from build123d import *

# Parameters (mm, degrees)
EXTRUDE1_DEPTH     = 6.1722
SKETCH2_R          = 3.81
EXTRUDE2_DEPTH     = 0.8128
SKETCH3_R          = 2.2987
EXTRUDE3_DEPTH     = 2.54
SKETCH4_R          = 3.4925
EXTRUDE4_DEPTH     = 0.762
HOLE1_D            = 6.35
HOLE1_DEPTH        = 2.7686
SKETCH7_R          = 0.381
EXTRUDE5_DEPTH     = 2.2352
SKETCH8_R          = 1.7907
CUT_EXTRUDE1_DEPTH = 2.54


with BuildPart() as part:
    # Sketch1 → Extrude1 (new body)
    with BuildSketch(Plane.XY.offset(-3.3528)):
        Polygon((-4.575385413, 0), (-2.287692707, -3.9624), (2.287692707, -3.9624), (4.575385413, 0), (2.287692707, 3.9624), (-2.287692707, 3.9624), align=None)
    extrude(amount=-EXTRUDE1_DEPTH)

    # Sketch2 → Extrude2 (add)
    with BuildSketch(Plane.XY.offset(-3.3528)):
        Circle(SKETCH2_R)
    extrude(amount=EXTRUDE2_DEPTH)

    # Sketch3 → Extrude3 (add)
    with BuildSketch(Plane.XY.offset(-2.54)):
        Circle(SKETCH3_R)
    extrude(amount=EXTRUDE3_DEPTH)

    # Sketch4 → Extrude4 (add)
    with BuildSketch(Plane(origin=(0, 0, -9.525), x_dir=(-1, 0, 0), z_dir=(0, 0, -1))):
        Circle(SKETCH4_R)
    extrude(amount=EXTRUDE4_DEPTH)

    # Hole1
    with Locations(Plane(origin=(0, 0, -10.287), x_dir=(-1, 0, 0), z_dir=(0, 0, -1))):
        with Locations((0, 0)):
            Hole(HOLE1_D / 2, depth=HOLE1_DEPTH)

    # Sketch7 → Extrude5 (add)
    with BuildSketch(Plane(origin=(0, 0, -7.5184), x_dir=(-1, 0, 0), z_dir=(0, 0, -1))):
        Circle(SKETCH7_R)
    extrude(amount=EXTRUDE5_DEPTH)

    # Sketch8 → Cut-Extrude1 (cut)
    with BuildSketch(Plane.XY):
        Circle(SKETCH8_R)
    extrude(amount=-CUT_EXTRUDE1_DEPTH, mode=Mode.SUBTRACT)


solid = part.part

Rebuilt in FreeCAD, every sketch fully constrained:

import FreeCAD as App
import Part
import Sketcher
from FreeCAD import Vector
Q = App.Units.Quantity

doc = App.newDocument("Part")
params = doc.addObject("Spreadsheet::Sheet", "Params")
for row, (alias, value) in enumerate([
    ("pad1_length", "0.243 in"),
    ("sketch2_diameter", "0.3 in"),
    ("pad2_length", "0.032 in"),
    ("sketch3_diameter", "0.181 in"),
    ("pad3_length", "0.1 in"),
    ("sketch4_diameter", "0.275 in"),
    ("pad4_length", "0.03 in"),
    ("sketch5_diameter", "0.25 in"),
    ("hole_diameter", "0.25 in"),
    ("hole_depth", "0.109 in"),
    ("sketch6_diameter", "0.03 in"),
    ("pad5_length", "0.088 in"),
    ("sketch7_diameter", "0.141 in"),
    ("pocket1_length", "0.1 in"),
], start=1):
    params.set(f"A{row}", alias)
    params.set(f"B{row}", "=" + value)
    params.setAlias(f"B{row}", alias)

body = doc.addObject("PartDesign::Body", "Body")

sketch1 = body.newObject("Sketcher::SketchObject", "Sketch")
sketch1.AttachmentSupport = (doc.getObject("XY_Plane"), [""])
sketch1.MapMode = "FlatFace"
sketch1.AttachmentOffset = App.Placement(Vector(0, 0, -0.132 * 25.4), App.Rotation())
sketch1.addGeometry(Part.LineSegment(Vector(-4.6, 0, 0), Vector(-2.3, -4, 0)), False)
sketch1.addGeometry(Part.LineSegment(Vector(-2.3, -4, 0), Vector(2.3, -4, 0)), False)
sketch1.addGeometry(Part.LineSegment(Vector(2.3, -4, 0), Vector(4.6, 0, 0)), False)
sketch1.addGeometry(Part.LineSegment(Vector(4.6, 0, 0), Vector(2.3, 4, 0)), False)
sketch1.addGeometry(Part.LineSegment(Vector(2.3, 4, 0), Vector(-2.3, 4, 0)), False)
sketch1.addGeometry(Part.LineSegment(Vector(-2.3, 4, 0), Vector(-4.6, 0, 0)), False)
sketch1.addConstraint(Sketcher.Constraint("Coincident", 0, 2, 1, 1))
sketch1.addConstraint(Sketcher.Constraint("Coincident", 1, 2, 2, 1))
sketch1.addConstraint(Sketcher.Constraint("Coincident", 2, 2, 3, 1))
sketch1.addConstraint(Sketcher.Constraint("Coincident", 3, 2, 4, 1))
sketch1.addConstraint(Sketcher.Constraint("Coincident", 4, 2, 5, 1))
sketch1.addConstraint(Sketcher.Constraint("Coincident", 5, 2, 0, 1))
sketch1.addConstraint(Sketcher.Constraint("Horizontal", 1))
sketch1.addConstraint(Sketcher.Constraint("Horizontal", 4))
sketch1.addConstraint(Sketcher.Constraint("Symmetric", 0, 2, 3, 2, -1, 1))
sketch1.addConstraint(Sketcher.Constraint("Symmetric", 2, 2, 5, 2, -1, 1))
sketch1.addConstraint(Sketcher.Constraint("PointOnObject", 2, 2, -1))
sketch1.addConstraint(Sketcher.Constraint("Parallel", 2, 5))
sketch1.addConstraint(Sketcher.Constraint("Vertical", 1, 2, 3, 2))
sketch1.addConstraint(Sketcher.Constraint("Angle", 0, Q("-60 deg")))
sketch1.addConstraint(Sketcher.Constraint("DistanceY", 0, 2, -1, 1, Q("0.156 in")))
sketch1.addConstraint(Sketcher.Constraint("DistanceX", 0, 2, 2, 2, Q("0.2701999 in")))
pad1 = body.newObject("PartDesign::Pad", "Pad")
pad1.Profile = sketch1
pad1.setExpression("Length", "Params.pad1_length")
pad1.Reversed = True

sketch2 = body.newObject("Sketcher::SketchObject", "Sketch001")
sketch2.AttachmentSupport = (doc.getObject("XY_Plane"), [""])
sketch2.MapMode = "FlatFace"
sketch2.AttachmentOffset = App.Placement(Vector(0, 0, -0.132 * 25.4), App.Rotation())
sketch2.addGeometry(Part.Circle(Vector(0, 0, 0), Vector(0, 0, 1), 3.8), False)
sketch2.addConstraint(Sketcher.Constraint("Coincident", 0, 3, -1, 1))
sketch2.addConstraint(Sketcher.Constraint("Diameter", 0, Q("0.3 in")))
sketch2.setExpression("Constraints[1]", "Params.sketch2_diameter")
pad2 = body.newObject("PartDesign::Pad", "Pad001")
pad2.Profile = sketch2
pad2.setExpression("Length", "Params.pad2_length")

sketch3 = body.newObject("Sketcher::SketchObject", "Sketch002")
sketch3.AttachmentSupport = (doc.getObject("XY_Plane"), [""])
sketch3.MapMode = "FlatFace"
sketch3.AttachmentOffset = App.Placement(Vector(0, 0, -0.1 * 25.4), App.Rotation())
sketch3.addGeometry(Part.Circle(Vector(0, 0, 0), Vector(0, 0, 1), 2.3), False)
sketch3.addConstraint(Sketcher.Constraint("Coincident", 0, 3, -1, 1))
sketch3.addConstraint(Sketcher.Constraint("Diameter", 0, Q("0.181 in")))
sketch3.setExpression("Constraints[1]", "Params.sketch3_diameter")
pad3 = body.newObject("PartDesign::Pad", "Pad002")
pad3.Profile = sketch3
pad3.setExpression("Length", "Params.pad3_length")

sketch4 = body.newObject("Sketcher::SketchObject", "Sketch003")
sketch4.AttachmentSupport = (doc.getObject("XY_Plane"), [""])
sketch4.MapMode = "FlatFace"
sketch4.AttachmentOffset = App.Placement(Vector(0, 0, -0.375 * 25.4), App.Rotation())
sketch4.addGeometry(Part.Circle(Vector(0, 0, 0), Vector(0, 0, 1), 3.5), False)
sketch4.addConstraint(Sketcher.Constraint("Coincident", 0, 3, -1, 1))
sketch4.addConstraint(Sketcher.Constraint("Diameter", 0, Q("0.275 in")))
sketch4.setExpression("Constraints[1]", "Params.sketch4_diameter")
pad4 = body.newObject("PartDesign::Pad", "Pad003")
pad4.Profile = sketch4
pad4.setExpression("Length", "Params.pad4_length")
pad4.Reversed = True

sketch5 = body.newObject("Sketcher::SketchObject", "Sketch004")
sketch5.AttachmentSupport = (doc.getObject("XY_Plane"), [""])
sketch5.MapMode = "FlatFace"
sketch5.AttachmentOffset = App.Placement(Vector(0, 0, -0.405 * 25.4), App.Rotation())
sketch5.addGeometry(Part.Circle(Vector(0, 0, 0), Vector(0, 0, 1), 3.2), False)
sketch5.addConstraint(Sketcher.Constraint("Coincident", 0, 3, -1, 1))
sketch5.addConstraint(Sketcher.Constraint("Diameter", 0, Q("0.25 in")))
sketch5.setExpression("Constraints[1]", "Params.sketch5_diameter")
doc.recompute()
hole = body.newObject("PartDesign::Hole", "Hole")
hole.Profile = sketch5
hole.ThreadType = "None"
hole.setExpression("Diameter", "Params.hole_diameter")
hole.DepthType = "Dimension"
hole.setExpression("Depth", "Params.hole_depth")
hole.DrillPoint = "Flat"
hole.Reversed = True

sketch6 = body.newObject("Sketcher::SketchObject", "Sketch005")
sketch6.AttachmentSupport = (doc.getObject("XY_Plane"), [""])
sketch6.MapMode = "FlatFace"
sketch6.AttachmentOffset = App.Placement(Vector(0, 0, -0.296 * 25.4), App.Rotation())
sketch6.addGeometry(Part.Circle(Vector(0, 0, 0), Vector(0, 0, 1), 0.38), False)
sketch6.addConstraint(Sketcher.Constraint("Coincident", 0, 3, -1, 1))
sketch6.addConstraint(Sketcher.Constraint("Diameter", 0, Q("0.03 in")))
sketch6.setExpression("Constraints[1]", "Params.sketch6_diameter")
pad5 = body.newObject("PartDesign::Pad", "Pad004")
pad5.Profile = sketch6
pad5.setExpression("Length", "Params.pad5_length")
pad5.Reversed = True

sketch7 = body.newObject("Sketcher::SketchObject", "Sketch006")
sketch7.AttachmentSupport = (doc.getObject("XY_Plane"), [""])
sketch7.MapMode = "FlatFace"
sketch7.addGeometry(Part.Circle(Vector(0, 0, 0), Vector(0, 0, 1), 1.8), False)
sketch7.addConstraint(Sketcher.Constraint("Coincident", 0, 3, -1, 1))
sketch7.addConstraint(Sketcher.Constraint("Diameter", 0, Q("0.141 in")))
sketch7.setExpression("Constraints[1]", "Params.sketch7_diameter")
pocket1 = body.newObject("PartDesign::Pocket", "Pocket")
pocket1.Profile = sketch7
pocket1.setExpression("Length", "Params.pocket1_length")

doc.recompute()
